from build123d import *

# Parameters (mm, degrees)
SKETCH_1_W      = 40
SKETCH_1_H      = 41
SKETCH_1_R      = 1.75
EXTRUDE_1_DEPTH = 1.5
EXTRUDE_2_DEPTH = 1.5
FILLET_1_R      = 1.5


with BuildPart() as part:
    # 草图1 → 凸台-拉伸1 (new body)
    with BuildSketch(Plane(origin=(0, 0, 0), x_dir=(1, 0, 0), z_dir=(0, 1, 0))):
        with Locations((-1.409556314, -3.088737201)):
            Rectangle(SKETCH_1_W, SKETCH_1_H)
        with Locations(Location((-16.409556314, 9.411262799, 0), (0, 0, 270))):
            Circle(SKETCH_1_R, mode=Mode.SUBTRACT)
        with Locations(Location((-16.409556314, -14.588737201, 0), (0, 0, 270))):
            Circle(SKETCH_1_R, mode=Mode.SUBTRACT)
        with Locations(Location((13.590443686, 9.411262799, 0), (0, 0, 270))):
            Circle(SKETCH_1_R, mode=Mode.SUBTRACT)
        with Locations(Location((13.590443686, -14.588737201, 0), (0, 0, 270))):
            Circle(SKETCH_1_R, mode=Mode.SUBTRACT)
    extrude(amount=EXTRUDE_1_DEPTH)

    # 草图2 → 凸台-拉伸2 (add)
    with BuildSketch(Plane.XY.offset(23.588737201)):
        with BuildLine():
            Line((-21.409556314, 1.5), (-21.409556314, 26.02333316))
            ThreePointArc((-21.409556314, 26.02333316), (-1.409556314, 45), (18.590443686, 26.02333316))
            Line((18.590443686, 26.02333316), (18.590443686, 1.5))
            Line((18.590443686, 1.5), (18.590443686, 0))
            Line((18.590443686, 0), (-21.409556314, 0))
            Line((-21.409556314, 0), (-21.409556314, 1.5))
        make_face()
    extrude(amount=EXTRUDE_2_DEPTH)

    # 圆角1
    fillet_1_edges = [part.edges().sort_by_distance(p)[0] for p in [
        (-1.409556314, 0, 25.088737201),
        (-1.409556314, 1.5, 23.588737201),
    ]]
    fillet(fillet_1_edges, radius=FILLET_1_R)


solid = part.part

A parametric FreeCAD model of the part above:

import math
import FreeCAD as App
import Part
import Sketcher
from FreeCAD import Vector


def edges_at(feature, points):
    """Names of the edges that pass closest to the given points."""
    edges = feature.Shape.Edges
    near = lambda p: min(range(len(edges)), key=lambda i: edges[i].distToShape(Part.Vertex(*p))[0])
    return sorted({f"Edge{near(p) + 1}" for p in points})

doc = App.newDocument("Part")
body = doc.addObject("PartDesign::Body", "Body")

# Sketch on XZ plane
sketch1 = body.newObject("Sketcher::SketchObject", "Sketch")
sketch1.AttachmentSupport = (doc.getObject("XZ_Plane"), [""])
sketch1.MapMode = "FlatFace"
sketch1.addGeometry(Part.LineSegment(Vector(-21.4, -17.4, 0), Vector(-21.4, 23.6, 0)), False)
sketch1.addGeometry(Part.LineSegment(Vector(-21.4, 23.6, 0), Vector(18.6, 23.6, 0)), False)
sketch1.addGeometry(Part.LineSegment(Vector(18.6, 23.6, 0), Vector(18.6, -17.4, 0)), False)
sketch1.addGeometry(Part.LineSegment(Vector(18.6, -17.4, 0), Vector(-21.4, -17.4, 0)), False)
sketch1.addGeometry(Part.Circle(Vector(-16.4, 14.6, 0), Vector(0, 0, 1), 1.8), False)
sketch1.addGeometry(Part.Circle(Vector(13.6, 14.6, 0), Vector(0, 0, 1), 1.8), False)
sketch1.addGeometry(Part.Circle(Vector(-16.4, -9.4, 0), Vector(0, 0, 1), 1.8), False)
sketch1.addGeometry(Part.Circle(Vector(13.6, -9.4, 0), Vector(0, 0, 1), 1.8), False)
sketch1.addConstraint(Sketcher.Constraint("Coincident", 0, 2, 1, 1))
sketch1.addConstraint(Sketcher.Constraint("Coincident", 1, 2, 2, 1))
sketch1.addConstraint(Sketcher.Constraint("Coincident", 2, 2, 3, 1))
sketch1.addConstraint(Sketcher.Constraint("Coincident", 3, 2, 0, 1))
sketch1.addConstraint(Sketcher.Constraint("Vertical", 0))
sketch1.addConstraint(Sketcher.Constraint("Horizontal", 1))
sketch1.addConstraint(Sketcher.Constraint("Vertical", 2))
sketch1.addConstraint(Sketcher.Constraint("Horizontal", 3))
sketch1.addConstraint(Sketcher.Constraint("Equal", 4, 5))
sketch1.addConstraint(Sketcher.Constraint("Equal", 5, 6))
sketch1.addConstraint(Sketcher.Constraint("Equal", 6, 7))
sketch1.addConstraint(Sketcher.Constraint("Horizontal", 4, 3, 5, 3))
sketch1.addConstraint(Sketcher.Constraint("Horizontal", 6, 3, 7, 3))
sketch1.addConstraint(Sketcher.Constraint("Vertical", 4, 3, 6, 3))
sketch1.addConstraint(Sketcher.Constraint("Vertical", 5, 3, 7, 3))
sketch1.addConstraint(Sketcher.Constraint("Diameter", 4, 3.5))
sketch1.addConstraint(Sketcher.Constraint("DistanceX", 1, 1, 1, 2, 40.0))
sketch1.addConstraint(Sketcher.Constraint("DistanceY", 0, 1, 0, 2, 41.0))
sketch1.addConstraint(Sketcher.Constraint("DistanceX", 4, 3, 5, 3, 30.0))
sketch1.addConstraint(Sketcher.Constraint("DistanceY", 6, 3, 4, 3, 24.0))
sketch1.addConstraint(Sketcher.Constraint("DistanceX", 0, 2, 4, 3, 5.0))
sketch1.addConstraint(Sketcher.Constraint("DistanceY", 4, 3, 0, 2, 9.0))
sketch1.addConstraint(Sketcher.Constraint("DistanceX", 4, 3, -1, 1, 16.409556))
sketch1.addConstraint(Sketcher.Constraint("DistanceY", -1, 1, 4, 3, 14.588737))
pad1 = body.newObject("PartDesign::Pad", "Pad")
pad1.Profile = sketch1
pad1.Length = 1.5
pad1.Reversed = True

# Sketch on XY plane
sketch2 = body.newObject("Sketcher::SketchObject", "Sketch001")
sketch2.AttachmentSupport = (doc.getObject("XY_Plane"), [""])
sketch2.MapMode = "FlatFace"
sketch2.AttachmentOffset = App.Placement(Vector(0, 0, 23.588737), App.Rotation())
sketch2.addGeometry(Part.ArcOfCircle(Part.Circle(Vector(-1, 25, 0), Vector(0, 0, 1), 20), math.radians(3), math.radians(177)), False)
sketch2.addGeometry(Part.LineSegment(Vector(-21, 26, 0), Vector(-21, 0, 0)), False)
sketch2.addGeometry(Part.LineSegment(Vector(-21, 0, 0), Vector(19, 0, 0)), False)
sketch2.addGeometry(Part.LineSegment(Vector(19, 0, 0), Vector(19, 26, 0)), False)
sketch2.addConstraint(Sketcher.Constraint("Coincident", 0, 2, 1, 1))
sketch2.addConstraint(Sketcher.Constraint("Coincident", 1, 2, 2, 1))
sketch2.addConstraint(Sketcher.Constraint("Coincident", 2, 2, 3, 1))
sketch2.addConstraint(Sketcher.Constraint("Coincident", 3, 2, 0, 1))
sketch2.addConstraint(Sketcher.Constraint("Vertical", 1))
sketch2.addConstraint(Sketcher.Constraint("Horizontal", 2))
sketch2.addConstraint(Sketcher.Constraint("Vertical", 3))
sketch2.addConstraint(Sketcher.Constraint("PointOnObject", 1, 2, -1))
sketch2.addConstraint(Sketcher.Constraint("Horizontal", 0, 2, 3, 2))
sketch2.addConstraint(Sketcher.Constraint("DistanceX", 2, 1, 2, 2, 40.0))
sketch2.addConstraint(Sketcher.Constraint("Radius", 0, 20.027592))
sketch2.addConstraint(Sketcher.Constraint("DistanceY", 1, 2, 1, 1, 26.023333))
sketch2.addConstraint(Sketcher.Constraint("DistanceX", 0, 3, -1, 1, 1.409556))
pad2 = body.newObject("PartDesign::Pad", "Pad001")
pad2.Profile = sketch2
pad2.Length = 1.5
doc.recompute()

fillet = body.newObject("PartDesign::Fillet", "Fillet")
fillet.Base = (pad2, edges_at(pad2, [(-1.41, 0, 25.089), (-1.41, 1.5, 23.589)]))
fillet.Radius = 1.5

doc.recompute()
